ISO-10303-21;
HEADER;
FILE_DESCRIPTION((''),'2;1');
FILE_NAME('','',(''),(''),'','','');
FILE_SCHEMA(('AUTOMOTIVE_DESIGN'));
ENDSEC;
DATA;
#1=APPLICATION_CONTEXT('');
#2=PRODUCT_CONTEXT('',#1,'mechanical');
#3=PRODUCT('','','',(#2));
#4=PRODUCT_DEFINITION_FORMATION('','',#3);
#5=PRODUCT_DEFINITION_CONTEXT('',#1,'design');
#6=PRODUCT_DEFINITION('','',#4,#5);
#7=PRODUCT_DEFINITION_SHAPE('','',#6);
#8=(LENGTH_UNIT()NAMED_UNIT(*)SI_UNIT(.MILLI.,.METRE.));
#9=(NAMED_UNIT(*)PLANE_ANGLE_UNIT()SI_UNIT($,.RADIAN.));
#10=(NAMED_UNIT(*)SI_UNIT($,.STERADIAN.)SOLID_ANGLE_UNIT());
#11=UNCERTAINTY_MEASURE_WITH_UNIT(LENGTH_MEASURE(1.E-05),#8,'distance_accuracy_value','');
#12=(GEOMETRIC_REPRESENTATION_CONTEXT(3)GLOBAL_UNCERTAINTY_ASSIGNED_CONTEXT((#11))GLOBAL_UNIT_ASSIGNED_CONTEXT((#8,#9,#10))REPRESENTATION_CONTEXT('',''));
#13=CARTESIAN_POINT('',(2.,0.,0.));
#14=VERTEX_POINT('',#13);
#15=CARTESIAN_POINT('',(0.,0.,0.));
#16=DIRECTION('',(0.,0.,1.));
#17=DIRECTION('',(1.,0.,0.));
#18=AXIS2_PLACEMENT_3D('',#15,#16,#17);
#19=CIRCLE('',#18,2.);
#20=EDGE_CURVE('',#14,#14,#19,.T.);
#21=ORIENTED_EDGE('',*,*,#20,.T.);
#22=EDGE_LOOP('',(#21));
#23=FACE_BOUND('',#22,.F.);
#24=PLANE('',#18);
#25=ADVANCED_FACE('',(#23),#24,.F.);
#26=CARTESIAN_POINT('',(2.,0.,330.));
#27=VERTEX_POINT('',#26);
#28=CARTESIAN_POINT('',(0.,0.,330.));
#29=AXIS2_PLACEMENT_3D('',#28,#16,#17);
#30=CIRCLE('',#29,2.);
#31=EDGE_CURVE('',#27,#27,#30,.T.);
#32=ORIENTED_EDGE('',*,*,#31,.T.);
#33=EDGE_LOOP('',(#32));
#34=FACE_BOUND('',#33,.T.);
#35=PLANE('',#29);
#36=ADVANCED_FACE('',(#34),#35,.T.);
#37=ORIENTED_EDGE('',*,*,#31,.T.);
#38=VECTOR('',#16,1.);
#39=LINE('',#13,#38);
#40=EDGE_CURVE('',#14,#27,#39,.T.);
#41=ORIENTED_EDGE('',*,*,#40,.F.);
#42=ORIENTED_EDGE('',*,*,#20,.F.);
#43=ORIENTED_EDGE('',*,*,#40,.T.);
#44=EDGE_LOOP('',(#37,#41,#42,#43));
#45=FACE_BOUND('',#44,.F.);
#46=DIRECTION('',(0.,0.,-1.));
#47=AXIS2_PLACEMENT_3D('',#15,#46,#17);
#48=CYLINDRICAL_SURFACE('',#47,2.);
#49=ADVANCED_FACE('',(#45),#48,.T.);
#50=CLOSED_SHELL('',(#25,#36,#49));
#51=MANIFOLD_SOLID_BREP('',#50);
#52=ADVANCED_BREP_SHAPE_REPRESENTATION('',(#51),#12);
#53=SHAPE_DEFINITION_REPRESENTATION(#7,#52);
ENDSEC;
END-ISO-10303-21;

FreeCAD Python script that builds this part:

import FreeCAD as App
import Part
import Sketcher
from FreeCAD import Vector

doc = App.newDocument("Part")
body = doc.addObject("PartDesign::Body", "Body")

sketch1 = body.newObject("Sketcher::SketchObject", "Sketch")
sketch1.AttachmentSupport = (doc.getObject("XY_Plane"), [""])
sketch1.MapMode = "FlatFace"
sketch1.addGeometry(Part.Circle(Vector(0, 0, 0), Vector(0, 0, 1), 2), False)
sketch1.addConstraint([
    Sketcher.Constraint("Coincident", 0, 3, -1, 1),
    Sketcher.Constraint("Diameter", 0, 4.0),
])
pad1 = body.newObject("PartDesign::Pad", "Pad")
pad1.Profile = sketch1
pad1.Length = 330

doc.recompute()
